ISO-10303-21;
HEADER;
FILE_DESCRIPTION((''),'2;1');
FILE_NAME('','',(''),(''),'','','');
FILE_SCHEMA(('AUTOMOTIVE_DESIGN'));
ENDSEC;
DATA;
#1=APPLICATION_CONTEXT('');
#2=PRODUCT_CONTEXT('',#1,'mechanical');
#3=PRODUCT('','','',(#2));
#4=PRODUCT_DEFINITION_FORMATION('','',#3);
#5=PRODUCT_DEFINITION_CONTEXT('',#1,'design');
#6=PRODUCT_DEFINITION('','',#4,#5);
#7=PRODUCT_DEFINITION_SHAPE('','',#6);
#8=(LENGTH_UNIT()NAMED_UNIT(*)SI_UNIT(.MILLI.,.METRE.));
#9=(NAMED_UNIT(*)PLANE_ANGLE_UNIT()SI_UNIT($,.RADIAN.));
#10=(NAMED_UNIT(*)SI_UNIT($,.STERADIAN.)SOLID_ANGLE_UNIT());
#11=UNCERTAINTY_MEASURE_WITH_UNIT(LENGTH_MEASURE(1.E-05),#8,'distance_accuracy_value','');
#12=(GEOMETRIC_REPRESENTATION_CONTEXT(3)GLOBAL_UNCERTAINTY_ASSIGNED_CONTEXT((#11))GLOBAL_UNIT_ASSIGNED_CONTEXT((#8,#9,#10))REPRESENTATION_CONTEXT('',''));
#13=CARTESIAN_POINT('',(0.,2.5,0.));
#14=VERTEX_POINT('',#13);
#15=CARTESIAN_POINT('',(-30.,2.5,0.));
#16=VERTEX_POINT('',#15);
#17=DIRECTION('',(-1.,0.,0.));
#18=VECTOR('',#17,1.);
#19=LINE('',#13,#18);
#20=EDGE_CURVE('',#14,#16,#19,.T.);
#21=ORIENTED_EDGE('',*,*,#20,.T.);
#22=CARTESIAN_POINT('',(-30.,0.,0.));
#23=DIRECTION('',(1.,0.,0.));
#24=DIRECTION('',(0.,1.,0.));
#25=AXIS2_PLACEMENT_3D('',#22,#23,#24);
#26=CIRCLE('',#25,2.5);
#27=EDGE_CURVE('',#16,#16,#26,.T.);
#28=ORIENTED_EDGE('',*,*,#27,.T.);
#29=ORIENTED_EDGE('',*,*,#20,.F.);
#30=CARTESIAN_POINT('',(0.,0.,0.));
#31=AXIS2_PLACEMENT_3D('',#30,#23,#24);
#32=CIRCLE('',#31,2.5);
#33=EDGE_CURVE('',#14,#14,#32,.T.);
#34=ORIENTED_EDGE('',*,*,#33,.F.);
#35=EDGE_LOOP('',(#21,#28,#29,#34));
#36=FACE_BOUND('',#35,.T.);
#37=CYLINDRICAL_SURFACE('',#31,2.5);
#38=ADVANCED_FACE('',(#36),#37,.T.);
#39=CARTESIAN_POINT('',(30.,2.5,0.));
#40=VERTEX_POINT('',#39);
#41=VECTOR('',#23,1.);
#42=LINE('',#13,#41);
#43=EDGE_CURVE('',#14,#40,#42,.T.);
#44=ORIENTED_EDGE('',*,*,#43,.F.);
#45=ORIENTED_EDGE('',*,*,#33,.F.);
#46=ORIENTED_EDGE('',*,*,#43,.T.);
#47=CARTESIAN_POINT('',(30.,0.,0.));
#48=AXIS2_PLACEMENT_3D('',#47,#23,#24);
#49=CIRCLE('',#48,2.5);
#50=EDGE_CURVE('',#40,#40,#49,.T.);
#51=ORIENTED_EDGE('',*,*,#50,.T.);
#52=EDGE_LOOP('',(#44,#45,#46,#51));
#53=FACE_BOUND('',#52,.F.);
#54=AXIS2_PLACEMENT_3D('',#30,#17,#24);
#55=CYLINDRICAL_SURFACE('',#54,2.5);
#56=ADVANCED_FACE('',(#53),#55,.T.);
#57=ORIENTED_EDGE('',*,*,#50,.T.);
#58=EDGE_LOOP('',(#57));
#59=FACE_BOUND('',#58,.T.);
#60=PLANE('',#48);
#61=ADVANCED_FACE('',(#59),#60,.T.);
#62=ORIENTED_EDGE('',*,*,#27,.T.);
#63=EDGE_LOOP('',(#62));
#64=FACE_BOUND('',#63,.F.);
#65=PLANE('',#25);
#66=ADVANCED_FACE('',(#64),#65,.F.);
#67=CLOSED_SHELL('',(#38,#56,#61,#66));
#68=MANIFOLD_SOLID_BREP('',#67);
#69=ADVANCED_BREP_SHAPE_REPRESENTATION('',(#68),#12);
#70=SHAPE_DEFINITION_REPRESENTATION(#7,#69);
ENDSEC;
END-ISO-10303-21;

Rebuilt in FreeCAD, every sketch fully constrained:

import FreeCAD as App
import Part
import Sketcher
from FreeCAD import Vector

doc = App.newDocument("Part")
params = doc.addObject("Spreadsheet::Sheet", "Params")
for row, (alias, value) in enumerate([
    ("sketch1_diameter", "5 mm"),
    ("pad1_length", "60 mm"),
], start=1):
    params.set(f"A{row}", alias)
    params.set(f"B{row}", "=" + value)
    params.setAlias(f"B{row}", alias)

body = doc.addObject("PartDesign::Body", "Body")

sketch1 = doc.addObject("Sketcher::SketchObject", "Sketch")
body.addObject(sketch1)
sketch1.AttachmentSupport = (doc.YZ_Plane, [""])
sketch1.MapMode = "FlatFace"
sketch1.addGeometry(Part.Circle(Vector(0, 0, 0), Vector(0, 0, 1), 2.5), False)
sketch1.addConstraint(Sketcher.Constraint("Coincident", 0, 3, -1, 1))
sketch1.addConstraint(Sketcher.Constraint("Diameter", 0, 5.0))
sketch1.setExpression("Constraints[1]", "Params.sketch1_diameter")
pad1 = doc.addObject("PartDesign::Pad", "Pad")
body.addObject(pad1)
pad1.Profile = sketch1
pad1.setExpression("Length", "Params.pad1_length")
pad1.Midplane = True

doc.recompute()
